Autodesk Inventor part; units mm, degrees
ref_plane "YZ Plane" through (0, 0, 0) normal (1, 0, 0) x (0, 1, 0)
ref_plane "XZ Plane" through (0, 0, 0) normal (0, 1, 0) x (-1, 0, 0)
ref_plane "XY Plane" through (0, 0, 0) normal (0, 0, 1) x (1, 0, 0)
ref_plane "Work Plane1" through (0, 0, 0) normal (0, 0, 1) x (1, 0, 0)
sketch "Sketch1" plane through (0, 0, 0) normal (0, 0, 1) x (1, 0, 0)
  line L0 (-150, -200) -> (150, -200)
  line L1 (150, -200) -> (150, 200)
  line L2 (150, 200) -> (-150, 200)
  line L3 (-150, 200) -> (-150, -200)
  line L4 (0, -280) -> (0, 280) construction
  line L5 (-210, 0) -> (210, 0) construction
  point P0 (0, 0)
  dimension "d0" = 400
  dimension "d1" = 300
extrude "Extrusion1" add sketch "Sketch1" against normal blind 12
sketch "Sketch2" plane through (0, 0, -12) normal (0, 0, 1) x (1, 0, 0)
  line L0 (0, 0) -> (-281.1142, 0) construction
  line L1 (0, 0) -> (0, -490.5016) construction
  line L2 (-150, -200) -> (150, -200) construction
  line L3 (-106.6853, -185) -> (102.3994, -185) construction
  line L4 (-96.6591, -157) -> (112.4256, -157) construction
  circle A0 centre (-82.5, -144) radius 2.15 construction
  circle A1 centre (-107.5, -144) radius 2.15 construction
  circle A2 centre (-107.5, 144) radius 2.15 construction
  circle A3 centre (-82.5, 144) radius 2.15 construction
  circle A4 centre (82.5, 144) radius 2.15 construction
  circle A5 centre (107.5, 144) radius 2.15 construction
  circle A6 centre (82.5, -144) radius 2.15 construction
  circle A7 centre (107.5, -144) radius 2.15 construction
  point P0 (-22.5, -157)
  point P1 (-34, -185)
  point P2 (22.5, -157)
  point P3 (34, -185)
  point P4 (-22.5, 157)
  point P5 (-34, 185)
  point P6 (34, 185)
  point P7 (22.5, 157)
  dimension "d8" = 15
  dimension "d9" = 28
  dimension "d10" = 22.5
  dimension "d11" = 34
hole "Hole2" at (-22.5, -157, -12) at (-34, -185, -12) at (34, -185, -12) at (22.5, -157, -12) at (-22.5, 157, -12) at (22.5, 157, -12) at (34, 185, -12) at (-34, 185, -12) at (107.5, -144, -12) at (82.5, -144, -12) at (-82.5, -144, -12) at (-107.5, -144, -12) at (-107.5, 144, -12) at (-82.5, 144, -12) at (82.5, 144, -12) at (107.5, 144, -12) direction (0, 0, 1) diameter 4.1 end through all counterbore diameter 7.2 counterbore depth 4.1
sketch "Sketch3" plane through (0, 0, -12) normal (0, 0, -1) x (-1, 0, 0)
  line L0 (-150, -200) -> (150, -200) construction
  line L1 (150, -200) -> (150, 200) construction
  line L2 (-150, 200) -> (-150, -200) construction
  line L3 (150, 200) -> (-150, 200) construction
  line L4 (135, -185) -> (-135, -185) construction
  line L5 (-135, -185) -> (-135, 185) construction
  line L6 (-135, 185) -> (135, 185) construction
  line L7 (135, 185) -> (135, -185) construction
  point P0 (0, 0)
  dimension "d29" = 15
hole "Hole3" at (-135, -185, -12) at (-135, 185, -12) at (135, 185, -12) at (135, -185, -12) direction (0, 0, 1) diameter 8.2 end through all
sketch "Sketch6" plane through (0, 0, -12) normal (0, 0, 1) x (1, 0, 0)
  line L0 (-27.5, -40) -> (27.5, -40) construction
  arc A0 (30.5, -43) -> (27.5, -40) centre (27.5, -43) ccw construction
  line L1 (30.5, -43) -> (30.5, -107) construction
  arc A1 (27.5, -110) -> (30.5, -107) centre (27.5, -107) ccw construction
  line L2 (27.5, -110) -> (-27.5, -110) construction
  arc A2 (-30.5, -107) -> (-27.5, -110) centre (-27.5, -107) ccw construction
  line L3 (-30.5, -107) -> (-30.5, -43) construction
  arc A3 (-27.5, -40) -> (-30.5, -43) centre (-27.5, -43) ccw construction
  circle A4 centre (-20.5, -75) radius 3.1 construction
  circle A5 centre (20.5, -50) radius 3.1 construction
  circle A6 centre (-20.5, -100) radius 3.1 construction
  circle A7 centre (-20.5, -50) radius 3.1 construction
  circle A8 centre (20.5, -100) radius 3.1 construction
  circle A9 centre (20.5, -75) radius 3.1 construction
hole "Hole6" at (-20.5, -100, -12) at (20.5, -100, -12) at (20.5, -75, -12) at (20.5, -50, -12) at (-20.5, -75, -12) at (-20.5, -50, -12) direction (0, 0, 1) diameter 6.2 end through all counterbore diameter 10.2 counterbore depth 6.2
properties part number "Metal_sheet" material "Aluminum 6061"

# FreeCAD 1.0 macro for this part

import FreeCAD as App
import Part
import Sketcher

V = App.Vector


def add_polygon(sketch, points):
    """Adds a closed chain of lines whose ends are joined by coincident constraints."""
    first, n = sketch.GeometryCount, len(points)
    for a, b in zip(points, points[1:] + points[:1]):
        sketch.addGeometry(Part.LineSegment(App.Vector(*a, 0), App.Vector(*b, 0)), False)
    for i in range(n):
        sketch.addConstraint(Sketcher.Constraint("Coincident", first + i, 2, first + (i + 1) % n, 1))

doc = App.newDocument("Part")
params = doc.addObject("Spreadsheet::Sheet", "Params")
for row, (alias, value) in enumerate([
    ("sketch1_width", "300 mm"),
    ("sketch1_height", "400 mm"),
    ("pad1_length", "12 mm"),
    ("sketch2_diameter", "4.1 mm"),
    ("hole_diameter", "4.1 mm"),
    ("hole_cbore_diameter", "7.2 mm"),
    ("hole_cbore_depth", "4.1 mm"),
    ("sketch3_diameter", "8.2 mm"),
    ("hole2_diameter", "8.2 mm"),
    ("sketch4_diameter", "6.2 mm"),
    ("hole3_diameter", "6.2 mm"),
    ("hole3_cbore_diameter", "10.2 mm"),
    ("hole3_cbore_depth", "6.2 mm"),
], start=1):
    params.set(f"A{row}", alias)
    params.set(f"B{row}", "=" + value)
    params.setAlias(f"B{row}", alias)

body = doc.addObject("PartDesign::Body", "Body")

# Sketch on XY plane
sketch1 = doc.addObject("Sketcher::SketchObject", "Sketch")
body.addObject(sketch1)
sketch1.AttachmentSupport = (doc.XY_Plane, [""])
sketch1.MapMode = "FlatFace"
add_polygon(sketch1, [(-150, 200), (-150, -200), (150, -200), (150, 200)])  # lines 0-3
sketch1.addConstraint([
    Sketcher.Constraint("Vertical", 0),
    Sketcher.Constraint("Horizontal", 1),
    Sketcher.Constraint("Vertical", 2),
    Sketcher.Constraint("Horizontal", 3),
    Sketcher.Constraint("Symmetric", 0, 2, 2, 2, -1, 1),
    Sketcher.Constraint("DistanceX", 1, 1, 1, 2, 300.0),
    Sketcher.Constraint("DistanceY", 0, 2, 0, 1, 400.0),
])
sketch1.setExpression("Constraints[9]", "Params.sketch1_width")
sketch1.setExpression("Constraints[10]", "Params.sketch1_height")
pad1 = doc.addObject("PartDesign::Pad", "Pad")
body.addObject(pad1)
pad1.Profile = sketch1
pad1.setExpression("Length", "Params.pad1_length")
pad1.Reversed = True

# Sketch on XY plane
sketch2 = doc.addObject("Sketcher::SketchObject", "Sketch001")
body.addObject(sketch2)
sketch2.AttachmentSupport = (doc.XY_Plane, [""])
sketch2.MapMode = "FlatFace"
sketch2.AttachmentOffset = App.Placement(V(0, 0, -12), App.Rotation())
sketch2.addGeometry([
    Part.Circle(V(-22.5, -157, 0), V(0, 0, 1), 2),  # 0
    Part.Circle(V(-34, -185, 0), V(0, 0, 1), 2),  # 1
    Part.Circle(V(34, -185, 0), V(0, 0, 1), 2),  # 2
    Part.Circle(V(22.5, -157, 0), V(0, 0, 1), 2),  # 3
    Part.Circle(V(-22.5, 157, 0), V(0, 0, 1), 2),  # 4
    Part.Circle(V(22.5, 157, 0), V(0, 0, 1), 2),  # 5
    Part.Circle(V(34, 185, 0), V(0, 0, 1), 2),  # 6
    Part.Circle(V(-34, 185, 0), V(0, 0, 1), 2),  # 7
    Part.Circle(V(107.5, -144, 0), V(0, 0, 1), 2),  # 8
    Part.Circle(V(82.5, -144, 0), V(0, 0, 1), 2),  # 9
    Part.Circle(V(-82.5, -144, 0), V(0, 0, 1), 2),  # 10
    Part.Circle(V(-107.5, -144, 0), V(0, 0, 1), 2),  # 11
    Part.Circle(V(-107.5, 144, 0), V(0, 0, 1), 2),  # 12
    Part.Circle(V(-82.5, 144, 0), V(0, 0, 1), 2),  # 13
    Part.Circle(V(82.5, 144, 0), V(0, 0, 1), 2),  # 14
    Part.Circle(V(107.5, 144, 0), V(0, 0, 1), 2),  # 15
], False)
sketch2.addConstraint([
    Sketcher.Constraint("Equal", 0, 1),
    Sketcher.Constraint("Equal", 1, 2),
    Sketcher.Constraint("Equal", 2, 3),
    Sketcher.Constraint("Equal", 3, 4),
    Sketcher.Constraint("Equal", 4, 5),
    Sketcher.Constraint("Equal", 5, 6),
    Sketcher.Constraint("Equal", 6, 7),
    Sketcher.Constraint("Equal", 7, 8),
    Sketcher.Constraint("Equal", 8, 9),
    Sketcher.Constraint("Equal", 9, 10),
    Sketcher.Constraint("Equal", 10, 11),
    Sketcher.Constraint("Equal", 11, 12),
    Sketcher.Constraint("Equal", 12, 13),
    Sketcher.Constraint("Equal", 13, 14),
    Sketcher.Constraint("Equal", 14, 15),
    Sketcher.Constraint("Symmetric", 3, 3, 4, 3, -1, 1),
    Sketcher.Constraint("Symmetric", 0, 3, 5, 3, -1, 1),
    Sketcher.Constraint("Symmetric", 1, 3, 6, 3, -1, 1),
    Sketcher.Constraint("Symmetric", 2, 3, 7, 3, -1, 1),
    Sketcher.Constraint("Symmetric", 8, 3, 12, 3, -1, 1),
    Sketcher.Constraint("Symmetric", 9, 3, 13, 3, -1, 1),
    Sketcher.Constraint("Symmetric", 10, 3, 14, 3, -1, 1),
    Sketcher.Constraint("Symmetric", 11, 3, 15, 3, -1, 1),
    Sketcher.Constraint("Symmetric", 1, 3, 2, 3, -2),
    Sketcher.Constraint("Symmetric", 0, 3, 3, 3, -2),
    Sketcher.Constraint("Symmetric", 9, 3, 10, 3, -2),
    Sketcher.Constraint("Symmetric", 8, 3, 11, 3, -2),
    Sketcher.Constraint("Horizontal", 8, 3, 9, 3),
    Sketcher.Constraint("Diameter", 0, 4.1),
    Sketcher.Constraint("DistanceY", 0, 3, -1, 1, 157.0),
    Sketcher.Constraint("DistanceX", 1, 3, -1, 1, 34.0),
    Sketcher.Constraint("DistanceY", 1, 3, -1, 1, 185.0),
    Sketcher.Constraint("DistanceY", 8, 3, -1, 1, 144.0),
    Sketcher.Constraint("DistanceX", 0, 3, 3, 3, 45.0),
    Sketcher.Constraint("DistanceX", 3, 3, 8, 3, 85.0),
    Sketcher.Constraint("DistanceX", 9, 3, 8, 3, 25.0),
])
sketch2.setExpression("Constraints[28]", "Params.sketch2_diameter")
doc.recompute()
hole = doc.addObject("PartDesign::Hole", "Hole")
body.addObject(hole)
hole.Profile = sketch2
hole.ThreadType = "None"
hole.setExpression("Diameter", "Params.hole_diameter")
hole.DepthType = "ThroughAll"
hole.HoleCutType = "Counterbore"
hole.setExpression("HoleCutDiameter", "Params.hole_cbore_diameter")
hole.setExpression("HoleCutDepth", "Params.hole_cbore_depth")
hole.Reversed = True

# Sketch on XY plane
sketch3 = doc.addObject("Sketcher::SketchObject", "Sketch002")
body.addObject(sketch3)
sketch3.AttachmentSupport = (doc.XY_Plane, [""])
sketch3.MapMode = "FlatFace"
sketch3.AttachmentOffset = App.Placement(V(0, 0, -12), App.Rotation())
sketch3.addGeometry([
    Part.Circle(V(-135, -185, 0), V(0, 0, 1), 4.1),
    Part.Circle(V(-135, 185, 0), V(0, 0, 1), 4.1),
    Part.Circle(V(135, 185, 0), V(0, 0, 1), 4.1),
    Part.Circle(V(135, -185, 0), V(0, 0, 1), 4.1),
], False)
sketch3.addConstraint([
    Sketcher.Constraint("Equal", 0, 1),
    Sketcher.Constraint("Equal", 1, 2),
    Sketcher.Constraint("Equal", 2, 3),
    Sketcher.Constraint("Symmetric", 0, 3, 2, 3, -1, 1),
    Sketcher.Constraint("Symmetric", 1, 3, 3, 3, -1, 1),
    Sketcher.Constraint("Symmetric", 1, 3, 2, 3, -2),
    Sketcher.Constraint("Diameter", 0, 8.2),
    Sketcher.Constraint("DistanceX", 0, 3, -1, 1, 135.0),
    Sketcher.Constraint("DistanceY", 0, 3, -1, 1, 185.0),
])
sketch3.setExpression("Constraints[6]", "Params.sketch3_diameter")
doc.recompute()
hole2 = doc.addObject("PartDesign::Hole", "Hole001")
body.addObject(hole2)
hole2.Profile = sketch3
hole2.ThreadType = "None"
hole2.setExpression("Diameter", "Params.hole2_diameter")
hole2.DepthType = "ThroughAll"
hole2.Reversed = True

# Sketch on XY plane
sketch4 = doc.addObject("Sketcher::SketchObject", "Sketch003")
body.addObject(sketch4)
sketch4.AttachmentSupport = (doc.XY_Plane, [""])
sketch4.MapMode = "FlatFace"
sketch4.AttachmentOffset = App.Placement(V(0, 0, -12), App.Rotation())
sketch4.addGeometry([
    Part.Circle(V(-20.5, -100, 0), V(0, 0, 1), 3.1),  # 0
    Part.Circle(V(20.5, -100, 0), V(0, 0, 1), 3.1),  # 1
    Part.Circle(V(20.5, -75, 0), V(0, 0, 1), 3.1),  # 2
    Part.Circle(V(20.5, -50, 0), V(0, 0, 1), 3.1),  # 3
    Part.Circle(V(-20.5, -75, 0), V(0, 0, 1), 3.1),  # 4
    Part.Circle(V(-20.5, -50, 0), V(0, 0, 1), 3.1),  # 5
], False)
sketch4.addConstraint([
    Sketcher.Constraint("Equal", 0, 1),
    Sketcher.Constraint("Equal", 1, 2),
    Sketcher.Constraint("Equal", 2, 3),
    Sketcher.Constraint("Equal", 3, 4),
    Sketcher.Constraint("Equal", 4, 5),
    Sketcher.Constraint("Symmetric", 0, 3, 1, 3, -2),
    Sketcher.Constraint("Symmetric", 2, 3, 4, 3, -2),
    Sketcher.Constraint("Symmetric", 3, 3, 5, 3, -2),
    Sketcher.Constraint("Vertical", 1, 3, 2, 3),
    Sketcher.Constraint("Vertical", 2, 3, 3, 3),
    Sketcher.Constraint("Diameter", 0, 6.2),
    Sketcher.Constraint("DistanceY", 0, 3, -1, 1, 100.0),
    Sketcher.Constraint("DistanceY", 2, 3, -1, 1, 75.0),
    Sketcher.Constraint("DistanceY", 3, 3, -1, 1, 50.0),
    Sketcher.Constraint("DistanceX", 0, 3, 1, 3, 41.0),
])
sketch4.setExpression("Constraints[10]", "Params.sketch4_diameter")
doc.recompute()
hole3 = doc.addObject("PartDesign::Hole", "Hole002")
body.addObject(hole3)
hole3.Profile = sketch4
hole3.ThreadType = "None"
hole3.setExpression("Diameter", "Params.hole3_diameter")
hole3.DepthType = "ThroughAll"
hole3.HoleCutType = "Counterbore"
hole3.setExpression("HoleCutDiameter", "Params.hole3_cbore_diameter")
hole3.setExpression("HoleCutDepth", "Params.hole3_cbore_depth")
hole3.Reversed = True

doc.recompute()
